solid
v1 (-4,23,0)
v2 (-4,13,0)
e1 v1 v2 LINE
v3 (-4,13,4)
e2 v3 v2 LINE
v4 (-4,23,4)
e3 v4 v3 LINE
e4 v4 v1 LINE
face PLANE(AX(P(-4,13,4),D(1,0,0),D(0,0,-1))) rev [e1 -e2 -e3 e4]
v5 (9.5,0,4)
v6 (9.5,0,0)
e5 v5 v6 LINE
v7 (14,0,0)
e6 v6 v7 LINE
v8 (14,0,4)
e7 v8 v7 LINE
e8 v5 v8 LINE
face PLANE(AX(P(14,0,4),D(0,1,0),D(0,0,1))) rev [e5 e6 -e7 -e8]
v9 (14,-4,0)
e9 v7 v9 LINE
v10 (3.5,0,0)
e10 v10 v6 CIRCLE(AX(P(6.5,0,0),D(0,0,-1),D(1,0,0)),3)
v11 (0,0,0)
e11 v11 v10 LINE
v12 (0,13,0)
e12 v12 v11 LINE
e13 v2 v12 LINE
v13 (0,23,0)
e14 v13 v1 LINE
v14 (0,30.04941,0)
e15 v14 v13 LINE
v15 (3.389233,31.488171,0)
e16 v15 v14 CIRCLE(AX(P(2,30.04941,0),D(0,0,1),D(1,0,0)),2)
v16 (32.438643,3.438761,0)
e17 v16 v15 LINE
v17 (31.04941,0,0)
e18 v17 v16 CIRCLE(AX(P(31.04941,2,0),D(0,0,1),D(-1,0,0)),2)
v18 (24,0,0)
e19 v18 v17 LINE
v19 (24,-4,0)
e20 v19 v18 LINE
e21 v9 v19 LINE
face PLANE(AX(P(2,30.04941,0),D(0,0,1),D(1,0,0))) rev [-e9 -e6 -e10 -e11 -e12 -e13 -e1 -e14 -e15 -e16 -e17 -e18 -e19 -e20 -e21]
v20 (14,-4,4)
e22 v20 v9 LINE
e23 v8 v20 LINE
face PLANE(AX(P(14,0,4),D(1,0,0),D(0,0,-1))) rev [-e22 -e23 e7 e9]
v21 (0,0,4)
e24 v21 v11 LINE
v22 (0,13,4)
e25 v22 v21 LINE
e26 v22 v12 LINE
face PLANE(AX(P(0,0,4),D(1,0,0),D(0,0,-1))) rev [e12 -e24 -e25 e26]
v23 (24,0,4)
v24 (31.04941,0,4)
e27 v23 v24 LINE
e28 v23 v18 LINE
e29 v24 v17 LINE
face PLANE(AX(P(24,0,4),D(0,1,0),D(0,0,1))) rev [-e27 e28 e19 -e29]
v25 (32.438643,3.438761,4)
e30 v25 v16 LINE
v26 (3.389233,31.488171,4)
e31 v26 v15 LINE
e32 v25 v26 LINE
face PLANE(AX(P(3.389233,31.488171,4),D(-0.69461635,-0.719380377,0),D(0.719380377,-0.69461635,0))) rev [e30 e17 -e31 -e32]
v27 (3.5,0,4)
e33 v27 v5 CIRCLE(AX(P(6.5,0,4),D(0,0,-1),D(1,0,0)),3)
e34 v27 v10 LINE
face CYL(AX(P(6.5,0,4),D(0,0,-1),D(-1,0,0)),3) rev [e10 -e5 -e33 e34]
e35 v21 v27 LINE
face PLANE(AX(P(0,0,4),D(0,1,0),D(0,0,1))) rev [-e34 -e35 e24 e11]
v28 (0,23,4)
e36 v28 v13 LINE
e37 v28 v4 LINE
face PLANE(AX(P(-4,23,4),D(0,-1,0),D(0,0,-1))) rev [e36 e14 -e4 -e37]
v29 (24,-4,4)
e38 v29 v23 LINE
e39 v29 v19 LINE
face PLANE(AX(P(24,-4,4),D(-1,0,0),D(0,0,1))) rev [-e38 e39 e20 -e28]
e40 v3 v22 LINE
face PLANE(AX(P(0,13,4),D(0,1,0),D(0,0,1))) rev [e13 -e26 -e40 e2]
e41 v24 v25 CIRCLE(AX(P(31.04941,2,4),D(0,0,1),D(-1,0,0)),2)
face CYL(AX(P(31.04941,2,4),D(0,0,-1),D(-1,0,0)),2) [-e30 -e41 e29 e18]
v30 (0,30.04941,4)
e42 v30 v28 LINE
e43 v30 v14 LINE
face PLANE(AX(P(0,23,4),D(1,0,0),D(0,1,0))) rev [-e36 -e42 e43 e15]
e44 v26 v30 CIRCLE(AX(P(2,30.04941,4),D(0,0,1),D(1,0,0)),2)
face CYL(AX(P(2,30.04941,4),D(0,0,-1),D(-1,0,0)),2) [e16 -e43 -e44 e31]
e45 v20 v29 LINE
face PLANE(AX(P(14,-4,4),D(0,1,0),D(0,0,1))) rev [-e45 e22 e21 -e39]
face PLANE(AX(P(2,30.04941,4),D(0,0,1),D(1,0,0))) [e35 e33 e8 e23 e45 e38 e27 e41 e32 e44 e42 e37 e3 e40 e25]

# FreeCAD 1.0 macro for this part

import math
import FreeCAD as App
import Part
import Sketcher
Q = App.Units.Quantity

doc = App.newDocument("Part")
body = doc.addObject("PartDesign::Body", "Body")

# Sketch on XY plane
sketch1 = body.newObject("Sketcher::SketchObject", "Sketch")
sketch1.AttachmentSupport = (doc.getObject("XY_Plane"), [""])
sketch1.MapMode = "FlatFace"
sketch1.addGeometry([
    Part.LineSegment(App.Vector(0, 0, 0), App.Vector(3.5, 0, 0)),  # 0
    Part.ArcOfCircle(Part.Circle(App.Vector(6.5, 0, 0), App.Vector(0, 0, 1), 3), math.radians(0), math.radians(180)),  # 1
    Part.LineSegment(App.Vector(9.5, 0, 0), App.Vector(14, 0, 0)),  # 2
    Part.LineSegment(App.Vector(14, 0, 0), App.Vector(14, -4, 0)),  # 3
    Part.LineSegment(App.Vector(14, -4, 0), App.Vector(24, -4, 0)),  # 4
    Part.LineSegment(App.Vector(24, -4, 0), App.Vector(24, 0, 0)),  # 5
    Part.LineSegment(App.Vector(24, 0, 0), App.Vector(31.04941, 0, 0)),  # 6
    Part.ArcOfCircle(Part.Circle(App.Vector(31.04941, 2, 0), App.Vector(0, 0, 1), 2), math.radians(-90), math.radians(46.003347)),  # 7
    Part.LineSegment(App.Vector(32.438643, 3.438761, 0), App.Vector(3.389233, 31.488171, 0)),  # 8
    Part.ArcOfCircle(Part.Circle(App.Vector(2, 30.04941, 0), App.Vector(0, 0, 1), 2), math.radians(46.003347), math.radians(180)),  # 9
    Part.LineSegment(App.Vector(0, 30.04941, 0), App.Vector(0, 23, 0)),  # 10
    Part.LineSegment(App.Vector(0, 23, 0), App.Vector(-4, 23, 0)),  # 11
    Part.LineSegment(App.Vector(-4, 23, 0), App.Vector(-4, 13, 0)),  # 12
    Part.LineSegment(App.Vector(-4, 13, 0), App.Vector(0, 13, 0)),  # 13
    Part.LineSegment(App.Vector(0, 13, 0), App.Vector(0, 0, 0)),  # 14
], False)
sketch1.addConstraint([
    Sketcher.Constraint("Coincident", 0, 2, 1, 2),
    Sketcher.Constraint("Coincident", 1, 1, 2, 1),
    Sketcher.Constraint("Coincident", 2, 2, 3, 1),
    Sketcher.Constraint("Coincident", 3, 2, 4, 1),
    Sketcher.Constraint("Coincident", 4, 2, 5, 1),
    Sketcher.Constraint("Coincident", 5, 2, 6, 1),
    Sketcher.Constraint("Tangent", 6, 2, 7, 1),
    Sketcher.Constraint("Tangent", 7, 2, 8, 1),
    Sketcher.Constraint("Tangent", 8, 2, 9, 1),
    Sketcher.Constraint("Tangent", 9, 2, 10, 1),
    Sketcher.Constraint("Coincident", 10, 2, 11, 1),
    Sketcher.Constraint("Coincident", 11, 2, 12, 1),
    Sketcher.Constraint("Coincident", 12, 2, 13, 1),
    Sketcher.Constraint("Coincident", 13, 2, 14, 1),
    Sketcher.Constraint("Coincident", 14, 2, 0, 1),
    Sketcher.Constraint("Horizontal", 0),
    Sketcher.Constraint("Horizontal", 2),
    Sketcher.Constraint("Vertical", 3),
    Sketcher.Constraint("Horizontal", 4),
    Sketcher.Constraint("Vertical", 5),
    Sketcher.Constraint("Horizontal", 6),
    Sketcher.Constraint("Vertical", 10),
    Sketcher.Constraint("Horizontal", 11),
    Sketcher.Constraint("Vertical", 12),
    Sketcher.Constraint("Horizontal", 13),
    Sketcher.Constraint("Vertical", 14),
    Sketcher.Constraint("Coincident", 14, 2, -1, 1),
    Sketcher.Constraint("Equal", 7, 9),
    Sketcher.Constraint("PointOnObject", 1, 3, -1),
    Sketcher.Constraint("PointOnObject", 1, 1, -1),
    Sketcher.Constraint("PointOnObject", 5, 2, -1),
    Sketcher.Constraint("PointOnObject", 9, 2, -2),
    Sketcher.Constraint("Equal", 13, 3),
    Sketcher.Constraint("Equal", 6, 10),
    Sketcher.Constraint("Equal", 4, 12),
    Sketcher.Constraint("Radius", 1, Q("3 mm")),
    Sketcher.Constraint("Radius", 7, Q("2 mm")),
    Sketcher.Constraint("DistanceX", 4, 1, 4, 2, Q("10 mm")),
    Sketcher.Constraint("DistanceX", 11, 2, 11, 1, Q("4 mm")),
    Sketcher.Constraint("DistanceY", 14, 2, 14, 1, Q("13 mm")),
    Sketcher.Constraint("DistanceX", 0, 1, 0, 2, Q("3.5 mm")),
    Sketcher.Constraint("DistanceX", 2, 1, 2, 2, Q("4.5 mm")),
    Sketcher.Constraint("DistanceX", 6, 1, 6, 2, Q("7.04941 mm")),
])
pad1 = body.newObject("PartDesign::Pad", "Pad")
pad1.Profile = sketch1
pad1.Length = 4

doc.recompute()
